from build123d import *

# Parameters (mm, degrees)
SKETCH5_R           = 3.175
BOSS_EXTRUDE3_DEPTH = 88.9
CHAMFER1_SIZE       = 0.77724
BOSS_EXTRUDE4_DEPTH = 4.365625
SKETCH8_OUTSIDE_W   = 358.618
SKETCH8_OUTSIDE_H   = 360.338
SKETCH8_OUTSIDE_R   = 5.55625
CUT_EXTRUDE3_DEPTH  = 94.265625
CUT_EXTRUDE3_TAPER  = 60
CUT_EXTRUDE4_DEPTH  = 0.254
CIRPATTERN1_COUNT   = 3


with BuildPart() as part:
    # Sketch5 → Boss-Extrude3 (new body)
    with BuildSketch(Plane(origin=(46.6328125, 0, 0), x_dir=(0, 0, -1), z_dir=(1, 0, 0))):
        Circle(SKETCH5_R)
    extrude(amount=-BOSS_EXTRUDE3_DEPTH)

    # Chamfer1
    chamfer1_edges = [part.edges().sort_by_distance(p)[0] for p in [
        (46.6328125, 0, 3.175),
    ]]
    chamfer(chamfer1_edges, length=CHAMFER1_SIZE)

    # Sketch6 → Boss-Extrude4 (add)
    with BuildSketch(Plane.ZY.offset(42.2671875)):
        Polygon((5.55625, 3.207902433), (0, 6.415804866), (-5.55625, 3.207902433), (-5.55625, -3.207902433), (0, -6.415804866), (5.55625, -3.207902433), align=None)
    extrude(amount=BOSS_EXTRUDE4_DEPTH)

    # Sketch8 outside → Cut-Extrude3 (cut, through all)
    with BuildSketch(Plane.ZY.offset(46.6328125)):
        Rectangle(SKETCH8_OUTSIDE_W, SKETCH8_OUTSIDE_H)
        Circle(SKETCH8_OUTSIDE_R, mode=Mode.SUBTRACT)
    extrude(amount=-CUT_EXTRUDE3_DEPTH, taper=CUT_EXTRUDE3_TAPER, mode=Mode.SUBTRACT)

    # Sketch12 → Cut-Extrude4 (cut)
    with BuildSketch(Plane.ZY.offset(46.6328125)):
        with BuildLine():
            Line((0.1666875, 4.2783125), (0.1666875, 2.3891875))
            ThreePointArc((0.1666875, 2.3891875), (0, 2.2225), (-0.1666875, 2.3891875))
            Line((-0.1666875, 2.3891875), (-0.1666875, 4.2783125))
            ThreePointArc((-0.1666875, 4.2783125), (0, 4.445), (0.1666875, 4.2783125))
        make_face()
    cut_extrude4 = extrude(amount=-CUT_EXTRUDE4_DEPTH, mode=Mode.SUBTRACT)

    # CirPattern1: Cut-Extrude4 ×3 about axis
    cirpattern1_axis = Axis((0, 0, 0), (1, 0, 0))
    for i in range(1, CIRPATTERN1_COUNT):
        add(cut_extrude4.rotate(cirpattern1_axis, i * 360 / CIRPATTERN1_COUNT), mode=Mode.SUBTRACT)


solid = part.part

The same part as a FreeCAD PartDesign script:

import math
import FreeCAD as App
import Part
import Sketcher
Q = App.Units.Quantity


def edges_at(feature, points):
    """Names of the edges that pass closest to the given points."""
    edges = feature.Shape.Edges
    near = lambda p: min(range(len(edges)), key=lambda i: edges[i].distToShape(Part.Vertex(*p))[0])
    return sorted({f"Edge{near(p) + 1}" for p in points})

doc = App.newDocument("Part")
params = doc.addObject("Spreadsheet::Sheet", "Params")
for row, (alias, value) in enumerate([
    ("sketch1_diameter", "0.25 in"),
    ("pad1_length", "3.5 in"),
    ("chamfer_size", "0.0306 in"),
    ("pad2_length", "0.171875 in"),
    ("sketch3_diameter", "0.4375 in"),
    ("pocket1_length", "94.265625 mm"),
    ("pocket1_taper", "60 deg"),
    ("pocket2_length", "0.01 in"),
], start=1):
    params.set(f"A{row}", alias)
    params.set(f"B{row}", "=" + value)
    params.setAlias(f"B{row}", alias)

body = doc.addObject("PartDesign::Body", "Body")

sketch1 = body.newObject("Sketcher::SketchObject", "Sketch")
sketch1.AttachmentSupport = (doc.getObject("YZ_Plane"), [""])
sketch1.MapMode = "FlatFace"
sketch1.AttachmentOffset = App.Placement(App.Vector(0, 0, 46.632812), App.Rotation())
sketch1.addGeometry(Part.Circle(App.Vector(0, 0, 0), App.Vector(0, 0, 1), 3.175), False)
sketch1.addConstraint([
    Sketcher.Constraint("Coincident", 0, 3, -1, 1),
    Sketcher.Constraint("Diameter", 0, Q("0.25 in")),
])
sketch1.setExpression("Constraints[1]", "Params.sketch1_diameter")
pad1 = body.newObject("PartDesign::Pad", "Pad")
pad1.Profile = sketch1
pad1.setExpression("Length", "Params.pad1_length")
pad1.Reversed = True
doc.recompute()

chamfer = body.newObject("PartDesign::Chamfer", "Chamfer")
chamfer.Base = (pad1, edges_at(pad1, [(46.633, 0, 3.175)]))
chamfer.setExpression("Size", "Params.chamfer_size")

sketch2 = body.newObject("Sketcher::SketchObject", "Sketch001")
sketch2.AttachmentSupport = (doc.getObject("YZ_Plane"), [""])
sketch2.MapMode = "FlatFace"
sketch2.AttachmentOffset = App.Placement(App.Vector(0, 0, -42.267187), App.Rotation())
sketch2.addGeometry([
    Part.LineSegment(App.Vector(3.207902, 5.55625, 0), App.Vector(6.415805, 0, 0)),
    Part.LineSegment(App.Vector(6.415805, 0, 0), App.Vector(3.207902, -5.55625, 0)),
    Part.LineSegment(App.Vector(3.207902, -5.55625, 0), App.Vector(-3.207902, -5.55625, 0)),
    Part.LineSegment(App.Vector(-3.207902, -5.55625, 0), App.Vector(-6.415805, 0, 0)),
    Part.LineSegment(App.Vector(-6.415805, 0, 0), App.Vector(-3.207902, 5.55625, 0)),
    Part.LineSegment(App.Vector(-3.207902, 5.55625, 0), App.Vector(3.207902, 5.55625, 0)),
], False)
sketch2.addConstraint([
    Sketcher.Constraint("Coincident", 0, 2, 1, 1),
    Sketcher.Constraint("Coincident", 1, 2, 2, 1),
    Sketcher.Constraint("Coincident", 2, 2, 3, 1),
    Sketcher.Constraint("Coincident", 3, 2, 4, 1),
    Sketcher.Constraint("Coincident", 4, 2, 5, 1),
    Sketcher.Constraint("Coincident", 5, 2, 0, 1),
    Sketcher.Constraint("Horizontal", 2),
    Sketcher.Constraint("Horizontal", 5),
    Sketcher.Constraint("Symmetric", 0, 2, 3, 2, -1, 1),
    Sketcher.Constraint("Symmetric", 1, 2, 4, 2, -1, 1),
    Sketcher.Constraint("PointOnObject", 0, 2, -1),
    Sketcher.Constraint("Parallel", 0, 3),
    Sketcher.Constraint("Vertical", 2, 2, 4, 2),
    Sketcher.Constraint("Angle", 0, Q("-60 deg")),
    Sketcher.Constraint("DistanceY", 1, 2, -1, 1, Q("0.21875 in")),
    Sketcher.Constraint("DistanceX", 2, 2, 2, 1, 6.415805),
])
pad2 = body.newObject("PartDesign::Pad", "Pad001")
pad2.Profile = sketch2
pad2.setExpression("Length", "Params.pad2_length")
pad2.Reversed = True

sketch3 = body.newObject("Sketcher::SketchObject", "Sketch002")
sketch3.AttachmentSupport = (doc.getObject("YZ_Plane"), [""])
sketch3.MapMode = "FlatFace"
sketch3.AttachmentOffset = App.Placement(App.Vector(0, 0, -46.632812), App.Rotation())
sketch3.addGeometry([
    Part.LineSegment(App.Vector(180.169, -179.309, 0), App.Vector(-180.169, -179.309, 0)),
    Part.LineSegment(App.Vector(-180.169, -179.309, 0), App.Vector(-180.169, 179.309, 0)),
    Part.LineSegment(App.Vector(-180.169, 179.309, 0), App.Vector(180.169, 179.309, 0)),
    Part.LineSegment(App.Vector(180.169, 179.309, 0), App.Vector(180.169, -179.309, 0)),
    Part.Circle(App.Vector(0, 0, 0), App.Vector(0, 0, 1), 5.55625),
], False)
sketch3.addConstraint([
    Sketcher.Constraint("Coincident", 0, 2, 1, 1),
    Sketcher.Constraint("Coincident", 1, 2, 2, 1),
    Sketcher.Constraint("Coincident", 2, 2, 3, 1),
    Sketcher.Constraint("Coincident", 3, 2, 0, 1),
    Sketcher.Constraint("Horizontal", 0),
    Sketcher.Constraint("Vertical", 1),
    Sketcher.Constraint("Horizontal", 2),
    Sketcher.Constraint("Vertical", 3),
    Sketcher.Constraint("Coincident", 4, 3, -1, 1),
    Sketcher.Constraint("Symmetric", 0, 2, 2, 2, -1, 1),
    Sketcher.Constraint("Diameter", 4, Q("0.4375 in")),
    Sketcher.Constraint("DistanceX", 0, 2, 0, 1, 360.338),
    Sketcher.Constraint("DistanceY", 1, 1, 1, 2, 358.618),
])
sketch3.setExpression("Constraints[10]", "Params.sketch3_diameter")
pocket1 = body.newObject("PartDesign::Pocket", "Pocket")
pocket1.Profile = sketch3
pocket1.setExpression("Length", "Params.pocket1_length")
pocket1.Reversed = True
pocket1.setExpression("TaperAngle", "Params.pocket1_taper")

sketch4 = body.newObject("Sketcher::SketchObject", "Sketch003")
sketch4.AttachmentSupport = (doc.getObject("YZ_Plane"), [""])
sketch4.MapMode = "FlatFace"
sketch4.AttachmentOffset = App.Placement(App.Vector(0, 0, -46.632812), App.Rotation())
sketch4.addGeometry([
    Part.LineSegment(App.Vector(2.389187, 0.166687, 0), App.Vector(4.278313, 0.166687, 0)),
    Part.ArcOfCircle(Part.Circle(App.Vector(4.278313, 0, 0), App.Vector(0, 0, 1), 0.166687), math.radians(-90), math.radians(90)),
    Part.LineSegment(App.Vector(4.278313, -0.166687, 0), App.Vector(2.389187, -0.166687, 0)),
    Part.ArcOfCircle(Part.Circle(App.Vector(2.389187, 0, 0), App.Vector(0, 0, 1), 0.166687), math.radians(90), math.radians(270)),
], False)
sketch4.addConstraint([
    Sketcher.Constraint("Tangent", 0, 2, 1, 2),
    Sketcher.Constraint("Tangent", 1, 1, 2, 1),
    Sketcher.Constraint("Tangent", 2, 2, 3, 2),
    Sketcher.Constraint("Tangent", 3, 1, 0, 1),
    Sketcher.Constraint("Horizontal", 0),
    Sketcher.Constraint("Horizontal", 2),
    Sketcher.Constraint("PointOnObject", 1, 3, -1),
    Sketcher.Constraint("Radius", 1, 0.166687),
    Sketcher.Constraint("DistanceX", 0, 1, 0, 2, 1.889125),
    Sketcher.Constraint("DistanceX", -1, 1, 1, 3, 4.278313),
])
pocket2 = body.newObject("PartDesign::Pocket", "Pocket001")
pocket2.Profile = sketch4
pocket2.setExpression("Length", "Params.pocket2_length")
pocket2.Reversed = True
doc.recompute()

polarpattern = body.newObject("PartDesign::PolarPattern", "PolarPattern")
polarpattern.Originals = [pocket2]
polarpattern.Axis = (doc.getObject("X_Axis"), [""])
polarpattern.Angle = 360
polarpattern.Occurrences = 3
body.Tip = polarpattern

doc.recompute()
